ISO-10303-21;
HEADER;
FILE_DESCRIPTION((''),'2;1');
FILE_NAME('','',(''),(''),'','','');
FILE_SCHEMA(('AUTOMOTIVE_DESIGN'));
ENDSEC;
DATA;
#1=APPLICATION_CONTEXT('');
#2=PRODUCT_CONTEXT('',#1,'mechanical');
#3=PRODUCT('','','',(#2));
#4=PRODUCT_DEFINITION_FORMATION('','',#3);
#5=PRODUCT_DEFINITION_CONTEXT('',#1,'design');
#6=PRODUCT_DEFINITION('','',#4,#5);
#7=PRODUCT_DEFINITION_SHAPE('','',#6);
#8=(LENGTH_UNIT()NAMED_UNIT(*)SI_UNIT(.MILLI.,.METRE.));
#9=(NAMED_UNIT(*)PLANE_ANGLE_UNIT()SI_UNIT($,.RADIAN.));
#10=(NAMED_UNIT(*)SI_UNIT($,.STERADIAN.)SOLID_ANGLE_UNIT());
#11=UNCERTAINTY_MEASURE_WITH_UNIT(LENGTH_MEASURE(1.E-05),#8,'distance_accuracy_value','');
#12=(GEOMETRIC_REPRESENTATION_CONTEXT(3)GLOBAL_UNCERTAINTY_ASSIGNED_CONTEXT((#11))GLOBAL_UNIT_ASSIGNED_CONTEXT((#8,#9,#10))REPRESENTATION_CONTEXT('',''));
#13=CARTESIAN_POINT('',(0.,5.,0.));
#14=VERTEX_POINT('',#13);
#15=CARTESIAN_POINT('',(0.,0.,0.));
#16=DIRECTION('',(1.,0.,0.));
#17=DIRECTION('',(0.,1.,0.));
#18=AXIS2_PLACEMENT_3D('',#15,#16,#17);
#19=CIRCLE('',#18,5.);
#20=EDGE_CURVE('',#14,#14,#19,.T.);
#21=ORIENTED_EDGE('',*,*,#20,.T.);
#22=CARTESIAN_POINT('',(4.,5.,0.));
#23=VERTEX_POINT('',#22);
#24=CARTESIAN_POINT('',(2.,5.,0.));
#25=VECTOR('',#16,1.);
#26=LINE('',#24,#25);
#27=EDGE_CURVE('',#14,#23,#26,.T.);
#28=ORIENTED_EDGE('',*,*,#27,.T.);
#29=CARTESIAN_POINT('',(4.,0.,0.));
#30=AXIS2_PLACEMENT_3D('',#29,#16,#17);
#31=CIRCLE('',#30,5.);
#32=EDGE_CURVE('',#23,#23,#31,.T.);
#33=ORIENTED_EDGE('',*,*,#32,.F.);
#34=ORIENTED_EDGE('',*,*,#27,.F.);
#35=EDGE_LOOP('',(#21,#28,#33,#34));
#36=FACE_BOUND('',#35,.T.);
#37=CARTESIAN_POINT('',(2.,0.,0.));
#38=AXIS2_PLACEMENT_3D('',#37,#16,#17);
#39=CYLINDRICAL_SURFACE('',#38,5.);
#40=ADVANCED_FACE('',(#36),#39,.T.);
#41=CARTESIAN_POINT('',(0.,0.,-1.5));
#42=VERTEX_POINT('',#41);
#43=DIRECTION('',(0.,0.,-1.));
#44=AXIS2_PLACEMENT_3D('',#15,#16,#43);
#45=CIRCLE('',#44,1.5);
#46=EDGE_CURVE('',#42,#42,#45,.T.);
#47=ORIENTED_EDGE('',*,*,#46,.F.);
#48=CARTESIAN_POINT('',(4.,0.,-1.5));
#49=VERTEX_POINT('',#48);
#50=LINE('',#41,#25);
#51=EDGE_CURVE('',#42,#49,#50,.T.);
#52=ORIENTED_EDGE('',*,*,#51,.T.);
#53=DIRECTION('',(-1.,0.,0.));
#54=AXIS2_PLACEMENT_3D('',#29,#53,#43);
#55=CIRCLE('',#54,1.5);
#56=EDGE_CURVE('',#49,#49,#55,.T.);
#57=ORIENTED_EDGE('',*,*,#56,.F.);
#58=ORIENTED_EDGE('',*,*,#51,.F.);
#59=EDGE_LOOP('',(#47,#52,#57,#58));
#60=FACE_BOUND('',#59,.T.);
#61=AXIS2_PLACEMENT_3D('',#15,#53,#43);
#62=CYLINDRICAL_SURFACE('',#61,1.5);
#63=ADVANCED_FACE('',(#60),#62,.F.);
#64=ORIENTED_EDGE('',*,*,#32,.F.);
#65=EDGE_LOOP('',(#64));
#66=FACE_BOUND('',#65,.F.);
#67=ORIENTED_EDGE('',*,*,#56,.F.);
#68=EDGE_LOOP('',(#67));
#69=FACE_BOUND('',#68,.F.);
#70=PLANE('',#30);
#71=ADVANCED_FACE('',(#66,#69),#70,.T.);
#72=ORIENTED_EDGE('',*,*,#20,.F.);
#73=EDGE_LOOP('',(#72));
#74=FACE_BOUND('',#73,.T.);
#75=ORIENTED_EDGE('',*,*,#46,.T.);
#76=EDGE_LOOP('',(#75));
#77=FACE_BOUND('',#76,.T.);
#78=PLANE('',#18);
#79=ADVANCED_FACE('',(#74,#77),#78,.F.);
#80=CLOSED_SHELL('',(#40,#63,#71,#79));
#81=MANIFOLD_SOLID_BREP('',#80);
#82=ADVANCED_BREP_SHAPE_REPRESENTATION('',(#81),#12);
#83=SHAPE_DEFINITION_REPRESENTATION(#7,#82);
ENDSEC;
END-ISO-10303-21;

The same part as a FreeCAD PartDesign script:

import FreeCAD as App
import Part
import Sketcher
from FreeCAD import Vector


def add_polygon(sketch, points):
    """Adds a closed chain of lines whose ends are joined by coincident constraints."""
    first, n = sketch.GeometryCount, len(points)
    for a, b in zip(points, points[1:] + points[:1]):
        sketch.addGeometry(Part.LineSegment(App.Vector(*a, 0), App.Vector(*b, 0)), False)
    for i in range(n):
        sketch.addConstraint(Sketcher.Constraint("Coincident", first + i, 2, first + (i + 1) % n, 1))

doc = App.newDocument("Part")
body = doc.addObject("PartDesign::Body", "Body")

# Sketch on XY plane
sketch1 = body.newObject("Sketcher::SketchObject", "Sketch")
sketch1.AttachmentSupport = (doc.getObject("XY_Plane"), [""])
sketch1.MapMode = "FlatFace"
add_polygon(sketch1, [(0, 5), (0, 0), (4, 0), (4, 5)])  # lines 0-3
sketch1.addConstraint([
    Sketcher.Constraint("Vertical", 0),
    Sketcher.Constraint("Horizontal", 1),
    Sketcher.Constraint("Vertical", 2),
    Sketcher.Constraint("Horizontal", 3),
    Sketcher.Constraint("Coincident", 0, 2, -1, 1),
    Sketcher.Constraint("DistanceX", 1, 1, 1, 2, 4.0),
    Sketcher.Constraint("DistanceY", 0, 2, 0, 1, 5.0),
])
revolution = body.newObject("PartDesign::Revolution", "Revolution")
revolution.Profile = sketch1
revolution.ReferenceAxis = (sketch1, ["H_Axis"])
revolution.Angle = 360

# Sketch on YZ plane
sketch2 = body.newObject("Sketcher::SketchObject", "Sketch001")
sketch2.AttachmentSupport = (doc.getObject("YZ_Plane"), [""])
sketch2.MapMode = "FlatFace"
sketch2.addGeometry(Part.Circle(Vector(0, 0, 0), Vector(0, 0, 1), 1.5), False)
sketch2.addConstraint([
    Sketcher.Constraint("Coincident", 0, 3, -1, 1),
    Sketcher.Constraint("Diameter", 0, 3.0),
])
pocket1 = body.newObject("PartDesign::Pocket", "Pocket")
pocket1.Profile = sketch2
pocket1.Type = "ThroughAll"
pocket1.Reversed = True

doc.recompute()
